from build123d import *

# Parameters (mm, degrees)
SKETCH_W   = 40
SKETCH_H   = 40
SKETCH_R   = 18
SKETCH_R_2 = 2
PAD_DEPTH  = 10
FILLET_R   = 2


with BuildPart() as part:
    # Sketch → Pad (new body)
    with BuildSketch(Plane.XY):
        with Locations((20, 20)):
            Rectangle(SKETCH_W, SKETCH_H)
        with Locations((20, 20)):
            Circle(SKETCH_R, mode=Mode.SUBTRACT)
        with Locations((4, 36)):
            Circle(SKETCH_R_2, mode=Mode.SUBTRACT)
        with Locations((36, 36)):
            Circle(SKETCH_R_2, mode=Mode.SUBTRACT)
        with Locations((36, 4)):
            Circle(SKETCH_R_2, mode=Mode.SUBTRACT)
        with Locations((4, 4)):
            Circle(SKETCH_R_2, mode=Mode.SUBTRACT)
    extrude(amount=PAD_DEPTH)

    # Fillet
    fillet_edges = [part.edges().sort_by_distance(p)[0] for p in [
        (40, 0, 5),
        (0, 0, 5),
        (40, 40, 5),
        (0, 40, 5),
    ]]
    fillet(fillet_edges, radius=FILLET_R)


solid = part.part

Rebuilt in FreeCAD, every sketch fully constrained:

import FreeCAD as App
import Part
import Sketcher


def edges_at(feature, points):
    """Names of the edges that pass closest to the given points."""
    edges = feature.Shape.Edges
    near = lambda p: min(range(len(edges)), key=lambda i: edges[i].distToShape(Part.Vertex(*p))[0])
    return sorted({f"Edge{near(p) + 1}" for p in points})


def add_polygon(sketch, points):
    """Adds a closed chain of lines whose ends are joined by coincident constraints."""
    first, n = sketch.GeometryCount, len(points)
    for a, b in zip(points, points[1:] + points[:1]):
        sketch.addGeometry(Part.LineSegment(App.Vector(*a, 0), App.Vector(*b, 0)), False)
    for i in range(n):
        sketch.addConstraint(Sketcher.Constraint("Coincident", first + i, 2, first + (i + 1) % n, 1))

doc = App.newDocument("Part")
body = doc.addObject("PartDesign::Body", "Body")

sketch1 = doc.addObject("Sketcher::SketchObject", "Sketch")
body.addObject(sketch1)
sketch1.AttachmentSupport = (doc.XY_Plane, [""])
sketch1.MapMode = "FlatFace"
add_polygon(sketch1, [(0, 40), (0, 0), (40, 0), (40, 40)])
sketch1.addGeometry(Part.Circle(App.Vector(4, 4, 0), App.Vector(0, 0, 1), 2), False)
sketch1.addGeometry(Part.Circle(App.Vector(36, 4, 0), App.Vector(0, 0, 1), 2), False)
sketch1.addGeometry(Part.Circle(App.Vector(4, 36, 0), App.Vector(0, 0, 1), 2), False)
sketch1.addGeometry(Part.Circle(App.Vector(20, 20, 0), App.Vector(0, 0, 1), 18), False)
sketch1.addGeometry(Part.Circle(App.Vector(36, 36, 0), App.Vector(0, 0, 1), 2), False)
sketch1.addConstraint([
    Sketcher.Constraint("Vertical", 0),
    Sketcher.Constraint("Horizontal", 1),
    Sketcher.Constraint("Vertical", 2),
    Sketcher.Constraint("Horizontal", 3),
    Sketcher.Constraint("Coincident", 0, 2, -1, 1),
    Sketcher.Constraint("Equal", 4, 5),
    Sketcher.Constraint("Equal", 5, 6),
    Sketcher.Constraint("Equal", 6, 8),
    Sketcher.Constraint("Horizontal", 4, 3, 5, 3),
    Sketcher.Constraint("Horizontal", 6, 3, 8, 3),
    Sketcher.Constraint("Vertical", 4, 3, 6, 3),
    Sketcher.Constraint("Vertical", 5, 3, 8, 3),
    Sketcher.Constraint("Equal", 3, 0),
    Sketcher.Constraint("Diameter", 4, 4.0),
    Sketcher.Constraint("Diameter", 7, 36.0),
    Sketcher.Constraint("DistanceX", 1, 1, 1, 2, 40.0),
    Sketcher.Constraint("DistanceX", -1, 1, 4, 3, 4.0),
    Sketcher.Constraint("DistanceY", -1, 1, 4, 3, 4.0),
    Sketcher.Constraint("DistanceX", -1, 1, 5, 3, 36.0),
    Sketcher.Constraint("DistanceY", -1, 1, 6, 3, 36.0),
    Sketcher.Constraint("DistanceX", -1, 1, 7, 3, 20.0),
    Sketcher.Constraint("DistanceY", -1, 1, 7, 3, 20.0),
])
pad1 = doc.addObject("PartDesign::Pad", "Pad")
body.addObject(pad1)
pad1.Profile = sketch1
pad1.Length = 10
doc.recompute()

fillet = doc.addObject("PartDesign::Fillet", "Fillet")
body.addObject(fillet)
fillet.Base = (pad1, edges_at(pad1, [
    (40, 0, 5),
    (0, 0, 5),
    (40, 40, 5),
    (0, 40, 5),
]))
fillet.Radius = 2

doc.recompute()
